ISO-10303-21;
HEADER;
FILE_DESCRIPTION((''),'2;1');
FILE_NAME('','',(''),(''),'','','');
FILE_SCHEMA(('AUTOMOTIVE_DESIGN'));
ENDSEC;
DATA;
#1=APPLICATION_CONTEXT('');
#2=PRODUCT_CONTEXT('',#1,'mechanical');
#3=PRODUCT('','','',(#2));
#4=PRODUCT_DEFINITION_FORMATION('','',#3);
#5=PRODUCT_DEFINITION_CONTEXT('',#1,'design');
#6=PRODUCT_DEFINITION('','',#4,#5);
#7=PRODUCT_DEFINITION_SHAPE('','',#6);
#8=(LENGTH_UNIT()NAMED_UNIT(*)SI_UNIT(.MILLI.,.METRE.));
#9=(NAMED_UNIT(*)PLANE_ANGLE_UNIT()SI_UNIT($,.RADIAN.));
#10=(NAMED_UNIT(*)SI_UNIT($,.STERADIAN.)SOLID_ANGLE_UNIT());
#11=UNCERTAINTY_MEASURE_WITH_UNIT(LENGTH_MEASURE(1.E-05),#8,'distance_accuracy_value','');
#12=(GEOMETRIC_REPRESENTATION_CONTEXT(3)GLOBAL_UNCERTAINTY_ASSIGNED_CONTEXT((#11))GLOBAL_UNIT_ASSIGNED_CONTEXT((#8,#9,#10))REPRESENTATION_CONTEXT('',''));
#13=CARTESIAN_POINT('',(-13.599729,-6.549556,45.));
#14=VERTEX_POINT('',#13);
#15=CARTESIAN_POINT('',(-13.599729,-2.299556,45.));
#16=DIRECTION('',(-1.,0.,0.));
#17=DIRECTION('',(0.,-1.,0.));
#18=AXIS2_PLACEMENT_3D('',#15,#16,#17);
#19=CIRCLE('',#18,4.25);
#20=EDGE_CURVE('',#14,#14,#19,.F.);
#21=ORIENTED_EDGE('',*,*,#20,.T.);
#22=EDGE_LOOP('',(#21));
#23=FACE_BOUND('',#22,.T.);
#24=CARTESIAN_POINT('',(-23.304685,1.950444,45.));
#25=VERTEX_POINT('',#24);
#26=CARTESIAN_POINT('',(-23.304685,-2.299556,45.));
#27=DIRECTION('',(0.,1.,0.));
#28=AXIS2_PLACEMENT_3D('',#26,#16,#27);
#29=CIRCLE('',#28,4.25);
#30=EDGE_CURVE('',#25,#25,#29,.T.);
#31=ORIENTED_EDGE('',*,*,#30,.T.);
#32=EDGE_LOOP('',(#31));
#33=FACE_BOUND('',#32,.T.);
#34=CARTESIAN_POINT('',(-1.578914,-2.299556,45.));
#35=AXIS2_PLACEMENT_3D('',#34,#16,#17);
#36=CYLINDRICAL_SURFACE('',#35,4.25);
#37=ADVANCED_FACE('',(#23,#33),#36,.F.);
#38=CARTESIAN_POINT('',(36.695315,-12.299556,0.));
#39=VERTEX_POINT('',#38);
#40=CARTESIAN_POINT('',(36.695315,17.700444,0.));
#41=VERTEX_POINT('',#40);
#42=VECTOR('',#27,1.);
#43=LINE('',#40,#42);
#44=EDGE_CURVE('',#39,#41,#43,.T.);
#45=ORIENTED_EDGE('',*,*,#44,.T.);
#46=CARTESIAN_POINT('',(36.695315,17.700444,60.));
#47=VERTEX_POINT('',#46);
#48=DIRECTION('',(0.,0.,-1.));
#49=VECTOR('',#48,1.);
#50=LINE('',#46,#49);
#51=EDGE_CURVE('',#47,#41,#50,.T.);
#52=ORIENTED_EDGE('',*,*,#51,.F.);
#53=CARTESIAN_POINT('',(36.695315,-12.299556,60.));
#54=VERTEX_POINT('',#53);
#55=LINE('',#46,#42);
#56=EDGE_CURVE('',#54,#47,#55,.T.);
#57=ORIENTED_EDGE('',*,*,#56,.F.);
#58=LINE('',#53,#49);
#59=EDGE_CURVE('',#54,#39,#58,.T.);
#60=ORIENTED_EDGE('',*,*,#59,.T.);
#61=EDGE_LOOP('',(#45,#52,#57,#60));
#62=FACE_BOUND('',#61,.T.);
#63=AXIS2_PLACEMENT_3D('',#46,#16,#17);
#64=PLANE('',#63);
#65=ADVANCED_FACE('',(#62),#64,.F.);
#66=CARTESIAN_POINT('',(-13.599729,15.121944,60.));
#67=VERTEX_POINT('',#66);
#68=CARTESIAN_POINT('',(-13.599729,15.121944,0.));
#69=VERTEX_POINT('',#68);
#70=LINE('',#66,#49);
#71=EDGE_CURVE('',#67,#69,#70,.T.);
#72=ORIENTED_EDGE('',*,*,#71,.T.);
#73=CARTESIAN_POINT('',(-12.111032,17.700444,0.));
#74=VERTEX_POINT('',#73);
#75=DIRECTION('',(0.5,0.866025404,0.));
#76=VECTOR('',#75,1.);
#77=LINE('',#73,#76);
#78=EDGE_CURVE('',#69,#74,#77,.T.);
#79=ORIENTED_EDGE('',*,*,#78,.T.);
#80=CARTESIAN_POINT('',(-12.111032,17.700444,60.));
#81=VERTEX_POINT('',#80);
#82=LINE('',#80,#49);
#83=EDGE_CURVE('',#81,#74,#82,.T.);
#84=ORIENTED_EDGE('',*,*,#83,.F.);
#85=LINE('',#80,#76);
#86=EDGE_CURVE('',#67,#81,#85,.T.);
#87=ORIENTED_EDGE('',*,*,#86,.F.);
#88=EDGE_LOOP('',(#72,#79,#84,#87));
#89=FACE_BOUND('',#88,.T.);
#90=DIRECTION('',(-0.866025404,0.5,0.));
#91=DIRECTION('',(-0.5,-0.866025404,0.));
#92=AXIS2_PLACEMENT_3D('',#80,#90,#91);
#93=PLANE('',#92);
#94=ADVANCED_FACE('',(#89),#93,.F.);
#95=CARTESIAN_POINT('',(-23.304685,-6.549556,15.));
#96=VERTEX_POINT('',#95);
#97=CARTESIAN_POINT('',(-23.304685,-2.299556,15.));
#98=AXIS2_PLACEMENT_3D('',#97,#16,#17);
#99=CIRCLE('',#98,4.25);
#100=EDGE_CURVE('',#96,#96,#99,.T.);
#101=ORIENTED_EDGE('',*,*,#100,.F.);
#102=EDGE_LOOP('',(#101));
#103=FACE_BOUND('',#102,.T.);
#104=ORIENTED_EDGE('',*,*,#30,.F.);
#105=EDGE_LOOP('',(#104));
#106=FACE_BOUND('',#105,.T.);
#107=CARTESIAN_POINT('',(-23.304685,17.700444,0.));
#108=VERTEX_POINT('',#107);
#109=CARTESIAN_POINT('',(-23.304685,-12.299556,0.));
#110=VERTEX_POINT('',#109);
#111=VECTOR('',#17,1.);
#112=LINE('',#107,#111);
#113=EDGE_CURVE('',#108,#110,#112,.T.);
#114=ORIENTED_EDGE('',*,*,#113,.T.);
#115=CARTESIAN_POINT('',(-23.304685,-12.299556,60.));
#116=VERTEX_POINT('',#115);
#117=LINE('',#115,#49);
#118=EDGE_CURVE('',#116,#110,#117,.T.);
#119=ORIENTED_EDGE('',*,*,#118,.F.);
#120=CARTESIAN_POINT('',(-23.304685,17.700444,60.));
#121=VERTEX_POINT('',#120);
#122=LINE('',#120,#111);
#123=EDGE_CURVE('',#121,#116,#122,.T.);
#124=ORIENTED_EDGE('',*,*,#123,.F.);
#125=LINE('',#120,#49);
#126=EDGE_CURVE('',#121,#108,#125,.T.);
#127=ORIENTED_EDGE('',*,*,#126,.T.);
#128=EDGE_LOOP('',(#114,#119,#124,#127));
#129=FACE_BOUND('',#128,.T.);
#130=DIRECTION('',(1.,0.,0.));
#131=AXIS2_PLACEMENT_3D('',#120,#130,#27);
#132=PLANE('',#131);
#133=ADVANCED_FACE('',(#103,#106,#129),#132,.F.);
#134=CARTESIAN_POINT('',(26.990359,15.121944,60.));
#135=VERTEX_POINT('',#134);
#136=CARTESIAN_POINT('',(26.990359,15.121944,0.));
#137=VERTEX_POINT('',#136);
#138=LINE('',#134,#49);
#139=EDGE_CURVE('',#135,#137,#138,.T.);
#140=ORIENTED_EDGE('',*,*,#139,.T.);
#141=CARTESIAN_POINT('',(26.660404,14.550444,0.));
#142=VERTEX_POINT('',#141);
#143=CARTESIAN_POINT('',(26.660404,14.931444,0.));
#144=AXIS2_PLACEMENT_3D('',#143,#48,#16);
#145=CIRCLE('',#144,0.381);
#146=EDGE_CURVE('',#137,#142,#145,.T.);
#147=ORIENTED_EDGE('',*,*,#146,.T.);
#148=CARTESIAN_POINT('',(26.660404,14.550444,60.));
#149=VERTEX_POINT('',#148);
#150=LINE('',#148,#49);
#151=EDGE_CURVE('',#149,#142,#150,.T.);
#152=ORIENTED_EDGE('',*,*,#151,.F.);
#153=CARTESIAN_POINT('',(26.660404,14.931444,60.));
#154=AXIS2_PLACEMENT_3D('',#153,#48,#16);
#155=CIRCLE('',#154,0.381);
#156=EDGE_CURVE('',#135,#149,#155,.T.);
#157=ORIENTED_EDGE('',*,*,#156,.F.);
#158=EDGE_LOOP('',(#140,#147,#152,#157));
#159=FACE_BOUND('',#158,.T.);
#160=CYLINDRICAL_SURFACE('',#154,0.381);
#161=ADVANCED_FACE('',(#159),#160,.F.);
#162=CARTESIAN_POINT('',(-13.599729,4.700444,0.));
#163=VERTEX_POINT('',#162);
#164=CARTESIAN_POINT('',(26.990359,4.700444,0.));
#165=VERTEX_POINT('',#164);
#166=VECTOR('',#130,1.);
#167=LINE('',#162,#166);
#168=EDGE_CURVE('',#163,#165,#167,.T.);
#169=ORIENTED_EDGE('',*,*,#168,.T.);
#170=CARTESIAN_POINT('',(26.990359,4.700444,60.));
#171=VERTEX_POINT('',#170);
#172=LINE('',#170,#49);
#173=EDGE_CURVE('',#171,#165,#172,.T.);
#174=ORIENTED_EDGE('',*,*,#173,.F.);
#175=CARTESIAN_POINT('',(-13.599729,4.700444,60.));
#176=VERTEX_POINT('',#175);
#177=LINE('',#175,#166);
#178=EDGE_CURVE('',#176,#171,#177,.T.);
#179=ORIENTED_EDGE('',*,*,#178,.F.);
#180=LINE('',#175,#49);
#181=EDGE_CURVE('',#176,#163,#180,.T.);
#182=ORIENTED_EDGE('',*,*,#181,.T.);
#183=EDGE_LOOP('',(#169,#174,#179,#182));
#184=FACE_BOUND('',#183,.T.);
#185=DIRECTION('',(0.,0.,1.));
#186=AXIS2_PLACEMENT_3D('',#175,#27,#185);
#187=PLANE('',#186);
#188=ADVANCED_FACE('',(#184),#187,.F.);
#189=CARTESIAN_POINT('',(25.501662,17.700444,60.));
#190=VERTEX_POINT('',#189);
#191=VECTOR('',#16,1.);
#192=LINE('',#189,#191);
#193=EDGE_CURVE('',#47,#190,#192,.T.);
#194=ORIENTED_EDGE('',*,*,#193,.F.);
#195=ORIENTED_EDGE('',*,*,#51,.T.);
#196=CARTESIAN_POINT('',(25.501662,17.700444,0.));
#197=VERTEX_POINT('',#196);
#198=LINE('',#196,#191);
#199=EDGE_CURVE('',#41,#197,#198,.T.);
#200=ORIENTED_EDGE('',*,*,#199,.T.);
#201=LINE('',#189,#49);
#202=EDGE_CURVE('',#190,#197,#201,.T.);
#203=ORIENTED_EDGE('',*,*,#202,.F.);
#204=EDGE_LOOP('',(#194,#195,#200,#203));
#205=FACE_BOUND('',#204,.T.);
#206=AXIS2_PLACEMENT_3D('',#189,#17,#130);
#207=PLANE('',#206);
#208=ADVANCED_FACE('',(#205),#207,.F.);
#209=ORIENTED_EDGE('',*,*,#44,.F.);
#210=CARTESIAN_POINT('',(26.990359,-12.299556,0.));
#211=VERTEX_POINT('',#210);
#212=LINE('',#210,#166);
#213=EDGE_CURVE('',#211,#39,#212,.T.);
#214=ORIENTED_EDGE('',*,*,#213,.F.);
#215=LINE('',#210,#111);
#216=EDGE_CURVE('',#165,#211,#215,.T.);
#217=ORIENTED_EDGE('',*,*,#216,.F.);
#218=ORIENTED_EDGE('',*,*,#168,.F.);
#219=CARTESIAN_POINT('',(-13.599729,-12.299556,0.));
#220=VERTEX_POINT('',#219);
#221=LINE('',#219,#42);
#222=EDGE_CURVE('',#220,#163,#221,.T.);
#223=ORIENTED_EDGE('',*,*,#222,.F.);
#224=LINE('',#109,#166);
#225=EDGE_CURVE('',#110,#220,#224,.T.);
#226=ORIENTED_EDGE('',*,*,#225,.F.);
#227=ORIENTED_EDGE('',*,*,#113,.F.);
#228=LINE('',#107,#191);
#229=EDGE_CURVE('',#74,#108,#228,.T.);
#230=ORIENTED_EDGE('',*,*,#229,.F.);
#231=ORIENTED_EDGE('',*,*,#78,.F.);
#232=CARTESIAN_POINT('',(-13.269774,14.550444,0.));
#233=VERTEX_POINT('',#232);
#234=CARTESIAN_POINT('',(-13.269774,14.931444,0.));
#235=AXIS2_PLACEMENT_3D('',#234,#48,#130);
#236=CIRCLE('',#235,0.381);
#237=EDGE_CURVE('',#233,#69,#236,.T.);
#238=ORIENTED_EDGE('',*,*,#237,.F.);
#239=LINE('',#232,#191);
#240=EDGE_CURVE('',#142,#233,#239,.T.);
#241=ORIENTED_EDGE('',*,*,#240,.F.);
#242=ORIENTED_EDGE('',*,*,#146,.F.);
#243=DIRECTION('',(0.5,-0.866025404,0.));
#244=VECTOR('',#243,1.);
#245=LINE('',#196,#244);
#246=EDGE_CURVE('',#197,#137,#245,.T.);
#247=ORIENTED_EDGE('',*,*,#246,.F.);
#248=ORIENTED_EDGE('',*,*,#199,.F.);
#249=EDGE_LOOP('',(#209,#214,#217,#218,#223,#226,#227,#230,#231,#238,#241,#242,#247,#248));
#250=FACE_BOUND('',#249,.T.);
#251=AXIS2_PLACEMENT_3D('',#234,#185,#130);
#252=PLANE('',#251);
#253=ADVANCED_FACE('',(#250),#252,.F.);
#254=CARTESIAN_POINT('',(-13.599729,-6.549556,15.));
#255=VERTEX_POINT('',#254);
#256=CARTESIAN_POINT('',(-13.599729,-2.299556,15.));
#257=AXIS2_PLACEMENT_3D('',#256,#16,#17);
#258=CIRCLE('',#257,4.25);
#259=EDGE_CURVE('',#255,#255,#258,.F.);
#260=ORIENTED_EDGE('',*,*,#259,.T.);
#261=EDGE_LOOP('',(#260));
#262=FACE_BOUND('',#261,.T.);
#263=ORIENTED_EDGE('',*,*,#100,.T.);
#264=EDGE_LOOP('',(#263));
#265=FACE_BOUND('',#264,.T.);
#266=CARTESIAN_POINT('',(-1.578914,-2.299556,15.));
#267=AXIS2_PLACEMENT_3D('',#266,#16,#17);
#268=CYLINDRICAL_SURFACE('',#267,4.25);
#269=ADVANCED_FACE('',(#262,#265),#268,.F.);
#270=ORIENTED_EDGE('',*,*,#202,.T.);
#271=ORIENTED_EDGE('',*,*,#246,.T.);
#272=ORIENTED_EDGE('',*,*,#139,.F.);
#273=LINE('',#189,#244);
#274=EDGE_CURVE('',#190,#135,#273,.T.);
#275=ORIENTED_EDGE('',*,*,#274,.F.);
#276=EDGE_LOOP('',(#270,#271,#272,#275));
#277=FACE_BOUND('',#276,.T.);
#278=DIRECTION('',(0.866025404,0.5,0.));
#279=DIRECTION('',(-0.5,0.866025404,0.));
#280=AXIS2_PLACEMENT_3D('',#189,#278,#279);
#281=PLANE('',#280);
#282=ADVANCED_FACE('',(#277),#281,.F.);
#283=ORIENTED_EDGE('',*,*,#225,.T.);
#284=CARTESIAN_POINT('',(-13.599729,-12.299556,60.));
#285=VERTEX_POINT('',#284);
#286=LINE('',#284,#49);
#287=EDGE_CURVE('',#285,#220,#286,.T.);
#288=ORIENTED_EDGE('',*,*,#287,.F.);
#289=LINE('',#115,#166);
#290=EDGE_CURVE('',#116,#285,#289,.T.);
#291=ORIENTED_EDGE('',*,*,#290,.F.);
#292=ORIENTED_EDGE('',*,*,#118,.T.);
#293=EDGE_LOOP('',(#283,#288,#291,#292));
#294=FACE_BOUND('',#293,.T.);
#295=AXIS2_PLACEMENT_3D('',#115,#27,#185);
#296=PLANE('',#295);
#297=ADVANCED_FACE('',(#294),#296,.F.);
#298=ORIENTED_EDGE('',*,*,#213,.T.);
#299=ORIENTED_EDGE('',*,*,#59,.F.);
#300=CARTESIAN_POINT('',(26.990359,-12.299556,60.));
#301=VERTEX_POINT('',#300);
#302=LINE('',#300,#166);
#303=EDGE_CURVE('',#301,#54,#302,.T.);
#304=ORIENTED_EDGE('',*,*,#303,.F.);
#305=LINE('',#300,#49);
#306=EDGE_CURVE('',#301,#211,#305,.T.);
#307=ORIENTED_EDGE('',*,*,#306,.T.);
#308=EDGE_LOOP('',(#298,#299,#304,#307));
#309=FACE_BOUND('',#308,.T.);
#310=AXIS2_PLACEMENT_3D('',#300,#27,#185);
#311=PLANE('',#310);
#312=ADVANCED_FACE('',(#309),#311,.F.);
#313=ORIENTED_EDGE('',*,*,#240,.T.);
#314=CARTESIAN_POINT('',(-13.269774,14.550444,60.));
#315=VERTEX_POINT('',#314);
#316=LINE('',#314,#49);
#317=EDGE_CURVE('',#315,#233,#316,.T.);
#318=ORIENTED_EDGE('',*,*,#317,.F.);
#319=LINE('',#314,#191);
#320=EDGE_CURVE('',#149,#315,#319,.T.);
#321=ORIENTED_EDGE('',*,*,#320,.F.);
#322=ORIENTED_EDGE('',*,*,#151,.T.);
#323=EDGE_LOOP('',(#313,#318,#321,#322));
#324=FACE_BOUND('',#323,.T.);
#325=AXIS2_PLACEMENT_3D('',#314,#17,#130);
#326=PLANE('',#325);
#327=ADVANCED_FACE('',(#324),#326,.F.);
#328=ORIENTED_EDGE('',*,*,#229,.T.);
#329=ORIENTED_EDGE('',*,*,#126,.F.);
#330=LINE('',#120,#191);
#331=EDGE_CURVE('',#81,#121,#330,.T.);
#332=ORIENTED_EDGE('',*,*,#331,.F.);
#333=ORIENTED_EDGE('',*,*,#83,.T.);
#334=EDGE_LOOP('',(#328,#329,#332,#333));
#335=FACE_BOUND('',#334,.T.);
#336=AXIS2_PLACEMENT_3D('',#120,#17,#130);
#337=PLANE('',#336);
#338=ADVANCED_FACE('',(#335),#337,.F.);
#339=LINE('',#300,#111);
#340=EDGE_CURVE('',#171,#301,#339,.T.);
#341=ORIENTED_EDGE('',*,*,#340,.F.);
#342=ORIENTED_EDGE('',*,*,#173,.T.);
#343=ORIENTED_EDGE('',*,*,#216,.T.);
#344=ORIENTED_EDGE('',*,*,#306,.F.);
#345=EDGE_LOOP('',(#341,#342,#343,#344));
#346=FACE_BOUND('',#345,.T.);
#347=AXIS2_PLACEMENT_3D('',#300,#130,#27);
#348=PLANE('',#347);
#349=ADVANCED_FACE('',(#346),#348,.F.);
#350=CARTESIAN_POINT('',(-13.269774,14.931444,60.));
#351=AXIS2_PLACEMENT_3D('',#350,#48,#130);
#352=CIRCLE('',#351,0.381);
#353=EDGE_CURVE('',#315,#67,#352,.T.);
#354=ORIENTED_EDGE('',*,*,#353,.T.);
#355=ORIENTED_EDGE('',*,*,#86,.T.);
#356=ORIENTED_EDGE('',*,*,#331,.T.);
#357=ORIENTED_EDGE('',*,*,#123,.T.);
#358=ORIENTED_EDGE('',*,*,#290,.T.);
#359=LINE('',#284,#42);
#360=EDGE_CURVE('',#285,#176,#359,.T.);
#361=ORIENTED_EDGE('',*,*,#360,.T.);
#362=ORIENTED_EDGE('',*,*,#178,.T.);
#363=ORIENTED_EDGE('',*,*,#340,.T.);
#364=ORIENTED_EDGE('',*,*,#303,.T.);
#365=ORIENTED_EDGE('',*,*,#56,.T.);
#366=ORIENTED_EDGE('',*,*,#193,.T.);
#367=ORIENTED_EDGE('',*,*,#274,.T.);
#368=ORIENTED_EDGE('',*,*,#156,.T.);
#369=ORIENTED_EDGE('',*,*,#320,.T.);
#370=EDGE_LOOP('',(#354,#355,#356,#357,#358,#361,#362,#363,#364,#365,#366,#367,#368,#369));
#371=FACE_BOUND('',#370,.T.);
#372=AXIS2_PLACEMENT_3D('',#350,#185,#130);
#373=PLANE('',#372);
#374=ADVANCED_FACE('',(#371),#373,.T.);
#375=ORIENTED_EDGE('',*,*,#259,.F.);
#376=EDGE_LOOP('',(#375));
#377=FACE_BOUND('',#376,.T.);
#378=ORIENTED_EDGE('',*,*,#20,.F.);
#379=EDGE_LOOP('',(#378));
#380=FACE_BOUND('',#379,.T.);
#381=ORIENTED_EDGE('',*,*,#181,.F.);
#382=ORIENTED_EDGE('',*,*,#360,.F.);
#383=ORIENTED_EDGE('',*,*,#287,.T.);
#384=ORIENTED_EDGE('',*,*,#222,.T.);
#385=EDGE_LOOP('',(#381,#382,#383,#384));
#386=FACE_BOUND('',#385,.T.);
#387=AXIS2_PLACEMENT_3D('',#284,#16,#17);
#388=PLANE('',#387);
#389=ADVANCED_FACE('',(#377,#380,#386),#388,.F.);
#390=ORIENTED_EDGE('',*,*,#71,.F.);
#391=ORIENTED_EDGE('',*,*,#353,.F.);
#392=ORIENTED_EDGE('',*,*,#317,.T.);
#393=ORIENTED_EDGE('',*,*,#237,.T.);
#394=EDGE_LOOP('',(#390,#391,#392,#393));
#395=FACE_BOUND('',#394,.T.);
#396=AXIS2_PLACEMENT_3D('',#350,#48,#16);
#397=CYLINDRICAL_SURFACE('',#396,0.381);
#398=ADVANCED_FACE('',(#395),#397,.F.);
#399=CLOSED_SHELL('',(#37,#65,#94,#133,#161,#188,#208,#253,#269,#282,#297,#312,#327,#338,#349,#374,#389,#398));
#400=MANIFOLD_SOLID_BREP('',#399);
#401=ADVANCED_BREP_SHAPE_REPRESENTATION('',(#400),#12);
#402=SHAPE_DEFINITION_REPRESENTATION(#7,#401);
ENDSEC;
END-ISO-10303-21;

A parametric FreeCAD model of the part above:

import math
import FreeCAD as App
import Part
import Sketcher
from FreeCAD import Vector
Q = App.Units.Quantity

doc = App.newDocument("Part")
body = doc.addObject("PartDesign::Body", "Body")

# Sketch on XY plane
sketch1 = doc.addObject("Sketcher::SketchObject", "Sketch")
body.addObject(sketch1)
sketch1.AttachmentSupport = (doc.XY_Plane, [""])
sketch1.MapMode = "FlatFace"
sketch1.addGeometry(Part.LineSegment(Vector(-23.304685, 17.700444, 0), Vector(-23.304685, -12.299556, 0)), False)
sketch1.addGeometry(Part.LineSegment(Vector(-23.304685, -12.299556, 0), Vector(-13.599729, -12.299556, 0)), False)
sketch1.addGeometry(Part.LineSegment(Vector(-13.599729, -12.299556, 0), Vector(-13.599729, 4.700444, 0)), False)
sketch1.addGeometry(Part.LineSegment(Vector(-13.599729, 4.700444, 0), Vector(26.990359, 4.700444, 0)), False)
sketch1.addGeometry(Part.LineSegment(Vector(26.990359, 4.700444, 0), Vector(26.990359, -12.299556, 0)), False)
sketch1.addGeometry(Part.LineSegment(Vector(26.990359, -12.299556, 0), Vector(36.695315, -12.299556, 0)), False)
sketch1.addGeometry(Part.LineSegment(Vector(36.695315, -12.299556, 0), Vector(36.695315, 17.700444, 0)), False)
sketch1.addGeometry(Part.LineSegment(Vector(36.695315, 17.700444, 0), Vector(25.501662, 17.700444, 0)), False)
sketch1.addGeometry(Part.LineSegment(Vector(25.501662, 17.700444, 0), Vector(26.990359, 15.121944, 0)), False)
sketch1.addGeometry(Part.ArcOfCircle(Part.Circle(Vector(26.660404, 14.931444, 0), Vector(0, 0, 1), 0.381), math.radians(-90), math.radians(30)), False)
sketch1.addGeometry(Part.LineSegment(Vector(26.660404, 14.550444, 0), Vector(-13.269774, 14.550444, 0)), False)
sketch1.addGeometry(Part.ArcOfCircle(Part.Circle(Vector(-13.269774, 14.931444, 0), Vector(0, 0, 1), 0.381), math.radians(150), math.radians(270)), False)
sketch1.addGeometry(Part.LineSegment(Vector(-13.599729, 15.121944, 0), Vector(-12.111032, 17.700444, 0)), False)
sketch1.addGeometry(Part.LineSegment(Vector(-12.111032, 17.700444, 0), Vector(-23.304685, 17.700444, 0)), False)
sketch1.addConstraint(Sketcher.Constraint("Coincident", 0, 2, 1, 1))
sketch1.addConstraint(Sketcher.Constraint("Coincident", 1, 2, 2, 1))
sketch1.addConstraint(Sketcher.Constraint("Coincident", 2, 2, 3, 1))
sketch1.addConstraint(Sketcher.Constraint("Coincident", 3, 2, 4, 1))
sketch1.addConstraint(Sketcher.Constraint("Coincident", 4, 2, 5, 1))
sketch1.addConstraint(Sketcher.Constraint("Coincident", 5, 2, 6, 1))
sketch1.addConstraint(Sketcher.Constraint("Coincident", 6, 2, 7, 1))
sketch1.addConstraint(Sketcher.Constraint("Coincident", 7, 2, 8, 1))
sketch1.addConstraint(Sketcher.Constraint("Tangent", 8, 2, 9, 2))
sketch1.addConstraint(Sketcher.Constraint("Tangent", 9, 1, 10, 1))
sketch1.addConstraint(Sketcher.Constraint("Tangent", 10, 2, 11, 2))
sketch1.addConstraint(Sketcher.Constraint("Tangent", 11, 1, 12, 1))
sketch1.addConstraint(Sketcher.Constraint("Coincident", 12, 2, 13, 1))
sketch1.addConstraint(Sketcher.Constraint("Coincident", 13, 2, 0, 1))
sketch1.addConstraint(Sketcher.Constraint("Vertical", 0))
sketch1.addConstraint(Sketcher.Constraint("Horizontal", 1))
sketch1.addConstraint(Sketcher.Constraint("Vertical", 2))
sketch1.addConstraint(Sketcher.Constraint("Horizontal", 3))
sketch1.addConstraint(Sketcher.Constraint("Vertical", 4))
sketch1.addConstraint(Sketcher.Constraint("Horizontal", 5))
sketch1.addConstraint(Sketcher.Constraint("Vertical", 6))
sketch1.addConstraint(Sketcher.Constraint("Horizontal", 7))
sketch1.addConstraint(Sketcher.Constraint("Horizontal", 10))
sketch1.addConstraint(Sketcher.Constraint("Horizontal", 13))
sketch1.addConstraint(Sketcher.Constraint("Equal", 9, 11))
sketch1.addConstraint(Sketcher.Constraint("Horizontal", 1, 2, 4, 2))
sketch1.addConstraint(Sketcher.Constraint("Horizontal", 8, 2, 11, 1))
sketch1.addConstraint(Sketcher.Constraint("Horizontal", 7, 2, 12, 2))
sketch1.addConstraint(Sketcher.Constraint("Vertical", 4, 2, 8, 2))
sketch1.addConstraint(Sketcher.Constraint("Vertical", 2, 2, 11, 1))
sketch1.addConstraint(Sketcher.Constraint("Equal", 1, 5))
sketch1.addConstraint(Sketcher.Constraint("DistanceY", 0, 2, 0, 1, Q("30 mm")))
sketch1.addConstraint(Sketcher.Constraint("DistanceY", 2, 1, 2, 2, Q("17 mm")))
sketch1.addConstraint(Sketcher.Constraint("Angle", 8, Q("-60 deg")))
sketch1.addConstraint(Sketcher.Constraint("Radius", 9, Q("0.381 mm")))
sketch1.addConstraint(Sketcher.Constraint("DistanceY", 9, 1, 7, 2, Q("3.15 mm")))
sketch1.addConstraint(Sketcher.Constraint("DistanceX", 3, 1, 3, 2, Q("40.590089 mm")))
sketch1.addConstraint(Sketcher.Constraint("DistanceX", 1, 1, 1, 2, Q("9.704956 mm")))
sketch1.addConstraint(Sketcher.Constraint("DistanceX", 1, 2, -1, 1, Q("13.599729 mm")))
sketch1.addConstraint(Sketcher.Constraint("DistanceY", -1, 1, 9, 3, Q("14.931444 mm")))
pad1 = doc.addObject("PartDesign::Pad", "Pad")
body.addObject(pad1)
pad1.Profile = sketch1
pad1.Length = 60

# Sketch on YZ plane
sketch2 = doc.addObject("Sketcher::SketchObject", "Sketch001")
body.addObject(sketch2)
sketch2.AttachmentSupport = (doc.YZ_Plane, [""])
sketch2.MapMode = "FlatFace"
sketch2.AttachmentOffset = App.Placement(Vector(0, 0, -23.304685), App.Rotation())
sketch2.addGeometry(Part.Circle(Vector(-2.299556, 15, 0), Vector(0, 0, 1), 4.25), False)
sketch2.addGeometry(Part.Circle(Vector(-2.299556, 45, 0), Vector(0, 0, 1), 4.25), False)
sketch2.addConstraint(Sketcher.Constraint("Equal", 0, 1))
sketch2.addConstraint(Sketcher.Constraint("Vertical", 0, 3, 1, 3))
sketch2.addConstraint(Sketcher.Constraint("Diameter", 0, Q("8.5 mm")))
sketch2.addConstraint(Sketcher.Constraint("DistanceY", -1, 1, 0, 3, Q("15 mm")))
sketch2.addConstraint(Sketcher.Constraint("DistanceY", -1, 1, 1, 3, Q("45 mm")))
sketch2.addConstraint(Sketcher.Constraint("DistanceX", 0, 3, -1, 1, Q("2.299556 mm")))
pocket1 = doc.addObject("PartDesign::Pocket", "Pocket")
body.addObject(pocket1)
pocket1.Profile = sketch2
pocket1.Length = 9.704956
pocket1.Reversed = True

doc.recompute()
